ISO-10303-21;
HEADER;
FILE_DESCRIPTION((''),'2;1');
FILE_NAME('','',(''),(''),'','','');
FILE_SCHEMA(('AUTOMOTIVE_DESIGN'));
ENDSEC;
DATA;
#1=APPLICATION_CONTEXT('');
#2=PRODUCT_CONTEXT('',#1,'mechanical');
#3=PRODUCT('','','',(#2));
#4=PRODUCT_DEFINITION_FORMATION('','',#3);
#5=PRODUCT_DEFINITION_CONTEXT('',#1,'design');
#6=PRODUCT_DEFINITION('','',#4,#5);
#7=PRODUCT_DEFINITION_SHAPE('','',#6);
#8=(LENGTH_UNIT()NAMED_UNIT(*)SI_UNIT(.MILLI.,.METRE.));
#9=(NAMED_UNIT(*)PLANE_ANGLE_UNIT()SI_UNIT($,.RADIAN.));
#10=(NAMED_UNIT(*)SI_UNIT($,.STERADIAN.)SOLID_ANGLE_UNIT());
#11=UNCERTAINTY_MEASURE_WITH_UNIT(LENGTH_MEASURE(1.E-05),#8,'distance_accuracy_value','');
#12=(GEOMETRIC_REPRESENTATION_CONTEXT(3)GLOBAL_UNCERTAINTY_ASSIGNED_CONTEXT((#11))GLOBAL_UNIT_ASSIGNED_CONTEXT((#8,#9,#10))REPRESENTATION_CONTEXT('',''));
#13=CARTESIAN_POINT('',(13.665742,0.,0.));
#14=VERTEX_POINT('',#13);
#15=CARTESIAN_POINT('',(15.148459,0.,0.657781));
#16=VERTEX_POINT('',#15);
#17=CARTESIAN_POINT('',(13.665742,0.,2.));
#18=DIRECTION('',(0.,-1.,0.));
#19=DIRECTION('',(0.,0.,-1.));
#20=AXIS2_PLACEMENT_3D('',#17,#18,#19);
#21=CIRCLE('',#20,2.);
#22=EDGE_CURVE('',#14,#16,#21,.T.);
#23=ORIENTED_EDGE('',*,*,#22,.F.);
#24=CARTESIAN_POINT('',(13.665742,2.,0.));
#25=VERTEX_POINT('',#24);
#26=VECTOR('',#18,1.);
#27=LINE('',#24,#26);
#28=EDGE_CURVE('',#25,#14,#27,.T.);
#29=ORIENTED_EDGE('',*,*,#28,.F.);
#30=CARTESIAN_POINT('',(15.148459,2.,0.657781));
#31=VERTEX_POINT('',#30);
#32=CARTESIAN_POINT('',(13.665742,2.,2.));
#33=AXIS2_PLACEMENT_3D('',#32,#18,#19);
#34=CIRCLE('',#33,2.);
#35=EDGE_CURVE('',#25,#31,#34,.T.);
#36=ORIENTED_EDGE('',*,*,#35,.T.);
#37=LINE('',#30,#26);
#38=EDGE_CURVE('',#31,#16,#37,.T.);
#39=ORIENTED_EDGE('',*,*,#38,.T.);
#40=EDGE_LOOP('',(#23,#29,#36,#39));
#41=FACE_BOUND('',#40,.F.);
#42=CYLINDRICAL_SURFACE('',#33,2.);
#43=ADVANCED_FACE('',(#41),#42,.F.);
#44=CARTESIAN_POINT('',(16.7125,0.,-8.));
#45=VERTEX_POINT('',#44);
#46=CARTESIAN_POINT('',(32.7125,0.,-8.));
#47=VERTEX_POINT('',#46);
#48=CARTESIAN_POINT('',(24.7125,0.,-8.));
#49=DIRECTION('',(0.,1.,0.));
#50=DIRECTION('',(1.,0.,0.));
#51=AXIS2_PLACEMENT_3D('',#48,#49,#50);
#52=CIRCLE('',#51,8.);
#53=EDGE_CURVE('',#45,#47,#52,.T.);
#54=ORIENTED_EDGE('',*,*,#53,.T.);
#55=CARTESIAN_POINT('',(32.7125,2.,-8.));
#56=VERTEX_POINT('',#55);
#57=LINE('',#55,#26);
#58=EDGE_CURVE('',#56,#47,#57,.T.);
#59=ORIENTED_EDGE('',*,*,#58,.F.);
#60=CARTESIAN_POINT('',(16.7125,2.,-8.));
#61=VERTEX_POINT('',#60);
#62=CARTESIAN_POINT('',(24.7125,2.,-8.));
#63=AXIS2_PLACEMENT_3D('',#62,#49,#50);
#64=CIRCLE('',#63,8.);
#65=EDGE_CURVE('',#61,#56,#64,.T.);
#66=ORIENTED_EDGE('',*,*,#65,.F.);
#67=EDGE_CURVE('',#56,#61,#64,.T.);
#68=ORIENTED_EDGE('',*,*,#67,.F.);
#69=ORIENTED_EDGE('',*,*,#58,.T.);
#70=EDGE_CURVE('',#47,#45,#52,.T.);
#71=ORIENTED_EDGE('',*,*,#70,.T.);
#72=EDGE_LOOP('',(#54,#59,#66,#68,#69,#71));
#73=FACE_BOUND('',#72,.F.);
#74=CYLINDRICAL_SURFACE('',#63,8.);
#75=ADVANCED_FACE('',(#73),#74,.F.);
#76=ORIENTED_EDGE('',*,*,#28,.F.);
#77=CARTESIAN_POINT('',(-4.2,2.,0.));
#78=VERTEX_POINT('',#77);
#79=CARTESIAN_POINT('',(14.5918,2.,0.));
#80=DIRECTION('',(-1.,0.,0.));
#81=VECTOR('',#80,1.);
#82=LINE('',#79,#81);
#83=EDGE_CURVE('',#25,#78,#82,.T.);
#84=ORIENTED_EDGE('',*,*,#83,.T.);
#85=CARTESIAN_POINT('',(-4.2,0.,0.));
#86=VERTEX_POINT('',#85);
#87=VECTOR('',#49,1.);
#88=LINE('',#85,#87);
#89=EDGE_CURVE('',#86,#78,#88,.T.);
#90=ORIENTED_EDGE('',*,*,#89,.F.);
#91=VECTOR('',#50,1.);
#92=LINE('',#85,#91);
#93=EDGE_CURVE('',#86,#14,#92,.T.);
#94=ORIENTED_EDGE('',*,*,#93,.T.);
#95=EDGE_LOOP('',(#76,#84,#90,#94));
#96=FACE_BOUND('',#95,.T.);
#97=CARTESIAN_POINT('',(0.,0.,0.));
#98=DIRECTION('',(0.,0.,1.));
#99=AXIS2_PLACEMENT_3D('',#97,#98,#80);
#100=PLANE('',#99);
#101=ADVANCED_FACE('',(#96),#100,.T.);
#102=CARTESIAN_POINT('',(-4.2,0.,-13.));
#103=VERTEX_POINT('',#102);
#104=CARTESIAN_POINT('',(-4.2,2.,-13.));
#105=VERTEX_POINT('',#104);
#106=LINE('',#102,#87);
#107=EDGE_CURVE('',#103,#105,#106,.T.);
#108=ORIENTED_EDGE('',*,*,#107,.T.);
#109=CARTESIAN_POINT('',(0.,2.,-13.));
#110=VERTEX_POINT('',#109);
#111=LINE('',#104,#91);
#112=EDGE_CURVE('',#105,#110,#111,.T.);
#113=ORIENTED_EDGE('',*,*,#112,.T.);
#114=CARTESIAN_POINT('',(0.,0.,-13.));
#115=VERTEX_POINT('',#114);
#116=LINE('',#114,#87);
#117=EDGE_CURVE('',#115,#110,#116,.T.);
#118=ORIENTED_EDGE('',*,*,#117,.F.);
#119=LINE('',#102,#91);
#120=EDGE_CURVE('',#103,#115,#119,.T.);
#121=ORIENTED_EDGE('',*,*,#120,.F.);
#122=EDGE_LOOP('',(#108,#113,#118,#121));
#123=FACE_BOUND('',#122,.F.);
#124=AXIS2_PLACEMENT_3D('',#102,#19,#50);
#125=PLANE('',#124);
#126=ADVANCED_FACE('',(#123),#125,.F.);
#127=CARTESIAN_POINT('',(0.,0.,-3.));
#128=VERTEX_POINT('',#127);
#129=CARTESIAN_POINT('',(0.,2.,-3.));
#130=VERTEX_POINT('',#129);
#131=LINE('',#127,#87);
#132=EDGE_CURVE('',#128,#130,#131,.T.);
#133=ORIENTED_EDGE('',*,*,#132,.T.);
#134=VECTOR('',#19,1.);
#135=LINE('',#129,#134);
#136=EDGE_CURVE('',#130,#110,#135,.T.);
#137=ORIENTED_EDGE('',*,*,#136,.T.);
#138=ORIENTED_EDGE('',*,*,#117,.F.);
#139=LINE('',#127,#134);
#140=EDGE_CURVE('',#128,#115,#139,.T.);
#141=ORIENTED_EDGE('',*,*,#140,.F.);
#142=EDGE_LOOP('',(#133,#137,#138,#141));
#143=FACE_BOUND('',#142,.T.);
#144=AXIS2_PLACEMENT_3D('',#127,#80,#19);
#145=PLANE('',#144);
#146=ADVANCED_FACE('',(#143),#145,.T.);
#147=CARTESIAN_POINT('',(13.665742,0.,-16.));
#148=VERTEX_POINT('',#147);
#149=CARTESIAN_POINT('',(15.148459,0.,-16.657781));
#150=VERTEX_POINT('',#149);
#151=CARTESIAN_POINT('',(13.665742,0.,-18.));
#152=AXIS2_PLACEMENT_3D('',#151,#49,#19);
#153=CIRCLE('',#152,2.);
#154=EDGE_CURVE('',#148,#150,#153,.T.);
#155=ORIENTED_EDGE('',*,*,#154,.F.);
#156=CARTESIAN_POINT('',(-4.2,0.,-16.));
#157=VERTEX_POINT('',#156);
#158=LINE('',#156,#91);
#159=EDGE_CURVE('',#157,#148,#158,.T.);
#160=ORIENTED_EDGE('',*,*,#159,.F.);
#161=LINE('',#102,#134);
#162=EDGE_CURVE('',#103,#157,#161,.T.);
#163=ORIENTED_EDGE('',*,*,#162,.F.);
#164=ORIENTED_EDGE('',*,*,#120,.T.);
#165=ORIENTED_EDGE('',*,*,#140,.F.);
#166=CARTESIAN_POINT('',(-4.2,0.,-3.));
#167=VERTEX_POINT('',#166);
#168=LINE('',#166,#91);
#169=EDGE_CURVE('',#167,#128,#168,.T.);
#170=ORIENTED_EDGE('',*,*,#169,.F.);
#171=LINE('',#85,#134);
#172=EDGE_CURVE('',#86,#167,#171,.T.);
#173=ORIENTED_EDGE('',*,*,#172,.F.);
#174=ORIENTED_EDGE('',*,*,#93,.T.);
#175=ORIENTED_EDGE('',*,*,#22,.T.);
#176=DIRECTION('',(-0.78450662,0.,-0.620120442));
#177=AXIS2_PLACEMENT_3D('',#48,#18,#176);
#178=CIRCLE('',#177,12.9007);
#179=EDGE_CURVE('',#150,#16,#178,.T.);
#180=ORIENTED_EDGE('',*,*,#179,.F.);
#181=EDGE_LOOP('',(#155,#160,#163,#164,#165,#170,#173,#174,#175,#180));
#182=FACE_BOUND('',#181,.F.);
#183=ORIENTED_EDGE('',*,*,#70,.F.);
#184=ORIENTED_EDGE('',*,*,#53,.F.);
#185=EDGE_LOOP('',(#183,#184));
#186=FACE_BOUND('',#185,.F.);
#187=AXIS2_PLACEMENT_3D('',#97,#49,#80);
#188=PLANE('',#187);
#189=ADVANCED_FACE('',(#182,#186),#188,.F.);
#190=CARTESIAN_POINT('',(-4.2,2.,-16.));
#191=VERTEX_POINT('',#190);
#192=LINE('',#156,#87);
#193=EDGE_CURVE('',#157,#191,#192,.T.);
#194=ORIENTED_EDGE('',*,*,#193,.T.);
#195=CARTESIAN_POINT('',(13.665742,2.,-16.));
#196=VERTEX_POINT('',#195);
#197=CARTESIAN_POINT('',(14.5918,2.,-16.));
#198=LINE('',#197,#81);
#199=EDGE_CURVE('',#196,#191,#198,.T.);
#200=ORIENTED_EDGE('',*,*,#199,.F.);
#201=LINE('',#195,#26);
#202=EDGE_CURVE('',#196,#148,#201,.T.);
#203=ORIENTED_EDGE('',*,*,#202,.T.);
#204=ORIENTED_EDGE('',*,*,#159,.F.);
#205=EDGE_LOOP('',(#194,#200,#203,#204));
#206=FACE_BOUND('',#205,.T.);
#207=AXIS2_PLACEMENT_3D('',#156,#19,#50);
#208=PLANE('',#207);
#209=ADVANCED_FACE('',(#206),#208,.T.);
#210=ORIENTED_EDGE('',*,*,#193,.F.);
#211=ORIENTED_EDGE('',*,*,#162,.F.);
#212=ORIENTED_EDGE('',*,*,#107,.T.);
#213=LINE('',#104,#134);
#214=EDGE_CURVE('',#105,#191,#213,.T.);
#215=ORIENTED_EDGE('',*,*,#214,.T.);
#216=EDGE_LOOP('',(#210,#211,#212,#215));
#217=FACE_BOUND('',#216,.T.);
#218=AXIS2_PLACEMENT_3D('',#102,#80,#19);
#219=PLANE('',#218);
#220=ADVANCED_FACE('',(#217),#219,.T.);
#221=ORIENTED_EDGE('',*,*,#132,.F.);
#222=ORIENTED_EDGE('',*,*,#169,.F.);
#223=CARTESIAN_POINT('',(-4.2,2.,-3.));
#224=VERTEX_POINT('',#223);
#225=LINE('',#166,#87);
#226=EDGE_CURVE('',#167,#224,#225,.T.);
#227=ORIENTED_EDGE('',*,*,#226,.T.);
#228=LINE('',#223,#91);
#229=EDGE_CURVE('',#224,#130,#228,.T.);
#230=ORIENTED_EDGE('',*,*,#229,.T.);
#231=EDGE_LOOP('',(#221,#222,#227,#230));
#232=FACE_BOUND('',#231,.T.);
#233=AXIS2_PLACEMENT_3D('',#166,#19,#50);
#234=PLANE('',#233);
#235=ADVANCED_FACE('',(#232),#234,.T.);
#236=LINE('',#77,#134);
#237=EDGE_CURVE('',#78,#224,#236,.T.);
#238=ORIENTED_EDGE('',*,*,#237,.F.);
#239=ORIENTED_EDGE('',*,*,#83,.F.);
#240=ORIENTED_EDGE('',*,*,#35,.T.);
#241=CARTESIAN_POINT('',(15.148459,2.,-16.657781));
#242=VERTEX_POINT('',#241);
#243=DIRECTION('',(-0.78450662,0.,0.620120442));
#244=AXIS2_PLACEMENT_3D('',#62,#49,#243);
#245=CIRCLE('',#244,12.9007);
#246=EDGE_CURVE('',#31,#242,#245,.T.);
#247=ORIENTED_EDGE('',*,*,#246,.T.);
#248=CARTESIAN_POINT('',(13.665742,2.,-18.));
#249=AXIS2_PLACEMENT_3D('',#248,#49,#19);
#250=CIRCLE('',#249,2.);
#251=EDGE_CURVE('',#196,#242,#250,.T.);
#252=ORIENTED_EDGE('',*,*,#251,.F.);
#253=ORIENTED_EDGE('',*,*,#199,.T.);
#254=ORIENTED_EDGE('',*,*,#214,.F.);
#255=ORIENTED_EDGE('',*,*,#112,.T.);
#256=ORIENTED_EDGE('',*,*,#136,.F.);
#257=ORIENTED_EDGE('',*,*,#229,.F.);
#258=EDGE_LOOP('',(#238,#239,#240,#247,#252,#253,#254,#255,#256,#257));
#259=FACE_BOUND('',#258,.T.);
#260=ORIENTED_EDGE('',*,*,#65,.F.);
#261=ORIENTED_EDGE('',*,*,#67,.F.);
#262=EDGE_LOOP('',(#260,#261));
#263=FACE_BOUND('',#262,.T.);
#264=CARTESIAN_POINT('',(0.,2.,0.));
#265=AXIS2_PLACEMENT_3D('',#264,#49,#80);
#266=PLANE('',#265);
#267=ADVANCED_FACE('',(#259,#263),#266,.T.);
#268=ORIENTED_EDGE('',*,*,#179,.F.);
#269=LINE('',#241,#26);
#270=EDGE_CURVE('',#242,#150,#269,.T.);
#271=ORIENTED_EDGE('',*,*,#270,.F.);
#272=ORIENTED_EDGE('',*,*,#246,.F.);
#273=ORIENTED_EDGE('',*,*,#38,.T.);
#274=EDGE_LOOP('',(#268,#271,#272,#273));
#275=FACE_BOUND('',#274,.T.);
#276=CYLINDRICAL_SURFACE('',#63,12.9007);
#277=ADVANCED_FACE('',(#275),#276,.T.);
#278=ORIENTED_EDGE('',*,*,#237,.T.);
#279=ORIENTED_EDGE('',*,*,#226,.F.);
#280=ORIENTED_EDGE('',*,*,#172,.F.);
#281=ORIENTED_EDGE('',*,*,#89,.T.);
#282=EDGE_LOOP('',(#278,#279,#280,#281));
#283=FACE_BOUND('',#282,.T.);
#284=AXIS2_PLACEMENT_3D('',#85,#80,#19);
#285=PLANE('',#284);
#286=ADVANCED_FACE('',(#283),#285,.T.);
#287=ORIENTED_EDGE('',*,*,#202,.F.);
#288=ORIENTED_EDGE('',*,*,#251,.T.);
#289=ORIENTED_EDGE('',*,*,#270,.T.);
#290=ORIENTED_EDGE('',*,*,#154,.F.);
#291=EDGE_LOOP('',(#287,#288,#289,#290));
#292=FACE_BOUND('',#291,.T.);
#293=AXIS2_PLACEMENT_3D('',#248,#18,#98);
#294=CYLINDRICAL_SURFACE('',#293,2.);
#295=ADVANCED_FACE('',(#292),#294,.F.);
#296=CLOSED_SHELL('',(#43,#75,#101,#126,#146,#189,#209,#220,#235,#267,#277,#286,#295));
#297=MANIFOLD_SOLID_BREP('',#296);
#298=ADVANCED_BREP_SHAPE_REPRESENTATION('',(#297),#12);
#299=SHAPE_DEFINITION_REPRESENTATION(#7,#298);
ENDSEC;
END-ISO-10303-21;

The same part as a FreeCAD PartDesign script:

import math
import FreeCAD as App
import Part
import Sketcher
Q = App.Units.Quantity


def edges_at(feature, points):
    """Names of the edges that pass closest to the given points."""
    edges = feature.Shape.Edges
    near = lambda p: min(range(len(edges)), key=lambda i: edges[i].distToShape(Part.Vertex(*p))[0])
    return sorted({f"Edge{near(p) + 1}" for p in points})

doc = App.newDocument("Part")
body = doc.addObject("PartDesign::Body", "Body")

# Sketch on XZ plane
sketch1 = doc.addObject("Sketcher::SketchObject", "Sketch")
body.addObject(sketch1)
sketch1.AttachmentSupport = (doc.XZ_Plane, [""])
sketch1.MapMode = "FlatFace"
sketch1.addGeometry(Part.LineSegment(App.Vector(-4.2, 0, 0), App.Vector(9.7125, 0, 0)), False)
sketch1.addGeometry(Part.LineSegment(App.Vector(9.7125, 0, 0), App.Vector(9.7125, -16, 0)), False)
sketch1.addGeometry(Part.LineSegment(App.Vector(9.7125, -16, 0), App.Vector(-4.2, -16, 0)), False)
sketch1.addGeometry(Part.LineSegment(App.Vector(-4.2, -16, 0), App.Vector(-4.2, -13, 0)), False)
sketch1.addGeometry(Part.LineSegment(App.Vector(-4.2, -13, 0), App.Vector(0, -13, 0)), False)
sketch1.addGeometry(Part.LineSegment(App.Vector(0, -13, 0), App.Vector(0, -3, 0)), False)
sketch1.addGeometry(Part.LineSegment(App.Vector(0, -3, 0), App.Vector(-4.2, -3, 0)), False)
sketch1.addGeometry(Part.LineSegment(App.Vector(-4.2, -3, 0), App.Vector(-4.2, 0, 0)), False)
sketch1.addConstraint(Sketcher.Constraint("Coincident", 0, 2, 1, 1))
sketch1.addConstraint(Sketcher.Constraint("Coincident", 1, 2, 2, 1))
sketch1.addConstraint(Sketcher.Constraint("Coincident", 2, 2, 3, 1))
sketch1.addConstraint(Sketcher.Constraint("Coincident", 3, 2, 4, 1))
sketch1.addConstraint(Sketcher.Constraint("Coincident", 4, 2, 5, 1))
sketch1.addConstraint(Sketcher.Constraint("Coincident", 5, 2, 6, 1))
sketch1.addConstraint(Sketcher.Constraint("Coincident", 6, 2, 7, 1))
sketch1.addConstraint(Sketcher.Constraint("Coincident", 7, 2, 0, 1))
sketch1.addConstraint(Sketcher.Constraint("Horizontal", 0))
sketch1.addConstraint(Sketcher.Constraint("Vertical", 1))
sketch1.addConstraint(Sketcher.Constraint("Horizontal", 2))
sketch1.addConstraint(Sketcher.Constraint("Vertical", 3))
sketch1.addConstraint(Sketcher.Constraint("Horizontal", 4))
sketch1.addConstraint(Sketcher.Constraint("Vertical", 5))
sketch1.addConstraint(Sketcher.Constraint("Horizontal", 6))
sketch1.addConstraint(Sketcher.Constraint("Vertical", 7))
sketch1.addConstraint(Sketcher.Constraint("PointOnObject", 0, 2, -1))
sketch1.addConstraint(Sketcher.Constraint("PointOnObject", 4, 2, -2))
sketch1.addConstraint(Sketcher.Constraint("Vertical", 3, 2, 6, 2))
sketch1.addConstraint(Sketcher.Constraint("Equal", 3, 7))
sketch1.addConstraint(Sketcher.Constraint("DistanceY", 3, 1, 3, 2, Q("3 mm")))
sketch1.addConstraint(Sketcher.Constraint("DistanceY", 5, 1, 5, 2, Q("10 mm")))
sketch1.addConstraint(Sketcher.Constraint("DistanceX", 4, 1, 4, 2, Q("4.2 mm")))
sketch1.addConstraint(Sketcher.Constraint("DistanceX", 0, 1, 0, 2, Q("13.9125 mm")))
pad1 = doc.addObject("PartDesign::Pad", "Pad")
body.addObject(pad1)
pad1.Profile = sketch1
pad1.Length = 2
pad1.Reversed = True

# Sketch on XZ plane
sketch2 = doc.addObject("Sketcher::SketchObject", "Sketch001")
body.addObject(sketch2)
sketch2.AttachmentSupport = (doc.XZ_Plane, [""])
sketch2.MapMode = "FlatFace"
sketch2.AttachmentOffset = App.Placement(App.Vector(0, 0, -2), App.Rotation())
sketch2.addGeometry(Part.LineSegment(App.Vector(9.7125, 0, 0), App.Vector(14.5918, 0, 0)), False)
sketch2.addGeometry(Part.ArcOfCircle(Part.Circle(App.Vector(24.7125, -8, 0), App.Vector(0, 0, 1), 12.9007), math.radians(-141.67507), math.radians(141.67507)), False)
sketch2.addGeometry(Part.LineSegment(App.Vector(14.5918, -16, 0), App.Vector(9.7125, -16, 0)), False)
sketch2.addGeometry(Part.LineSegment(App.Vector(9.7125, -16, 0), App.Vector(9.7125, 0, 0)), False)
sketch2.addGeometry(Part.Circle(App.Vector(24.7125, -8, 0), App.Vector(0, 0, 1), 8), False)
sketch2.addConstraint(Sketcher.Constraint("Coincident", 0, 2, 1, 2))
sketch2.addConstraint(Sketcher.Constraint("Coincident", 1, 1, 2, 1))
sketch2.addConstraint(Sketcher.Constraint("Coincident", 2, 2, 3, 1))
sketch2.addConstraint(Sketcher.Constraint("Coincident", 3, 2, 0, 1))
sketch2.addConstraint(Sketcher.Constraint("Horizontal", 0))
sketch2.addConstraint(Sketcher.Constraint("Horizontal", 2))
sketch2.addConstraint(Sketcher.Constraint("Vertical", 3))
sketch2.addConstraint(Sketcher.Constraint("Coincident", 4, 3, 1, 3))
sketch2.addConstraint(Sketcher.Constraint("PointOnObject", 0, 2, -1))
sketch2.addConstraint(Sketcher.Constraint("Vertical", 0, 2, 1, 1))
sketch2.addConstraint(Sketcher.Constraint("Diameter", 4, Q("16 mm")))
sketch2.addConstraint(Sketcher.Constraint("DistanceX", 2, 2, 1, 3, Q("15 mm")))
sketch2.addConstraint(Sketcher.Constraint("DistanceY", 3, 1, 3, 2, Q("16 mm")))
sketch2.addConstraint(Sketcher.Constraint("Radius", 1, Q("12.9007 mm")))
sketch2.addConstraint(Sketcher.Constraint("DistanceX", -1, 1, 1, 3, Q("24.7125 mm")))
pad2 = doc.addObject("PartDesign::Pad", "Pad001")
body.addObject(pad2)
pad2.Profile = sketch2
pad2.Length = 2
doc.recompute()

fillet = doc.addObject("PartDesign::Fillet", "Fillet")
body.addObject(fillet)
fillet.Base = (pad2, edges_at(pad2, [(14.592, 1, -16), (14.592, 1, 0)]))
fillet.Radius = 2

doc.recompute()
